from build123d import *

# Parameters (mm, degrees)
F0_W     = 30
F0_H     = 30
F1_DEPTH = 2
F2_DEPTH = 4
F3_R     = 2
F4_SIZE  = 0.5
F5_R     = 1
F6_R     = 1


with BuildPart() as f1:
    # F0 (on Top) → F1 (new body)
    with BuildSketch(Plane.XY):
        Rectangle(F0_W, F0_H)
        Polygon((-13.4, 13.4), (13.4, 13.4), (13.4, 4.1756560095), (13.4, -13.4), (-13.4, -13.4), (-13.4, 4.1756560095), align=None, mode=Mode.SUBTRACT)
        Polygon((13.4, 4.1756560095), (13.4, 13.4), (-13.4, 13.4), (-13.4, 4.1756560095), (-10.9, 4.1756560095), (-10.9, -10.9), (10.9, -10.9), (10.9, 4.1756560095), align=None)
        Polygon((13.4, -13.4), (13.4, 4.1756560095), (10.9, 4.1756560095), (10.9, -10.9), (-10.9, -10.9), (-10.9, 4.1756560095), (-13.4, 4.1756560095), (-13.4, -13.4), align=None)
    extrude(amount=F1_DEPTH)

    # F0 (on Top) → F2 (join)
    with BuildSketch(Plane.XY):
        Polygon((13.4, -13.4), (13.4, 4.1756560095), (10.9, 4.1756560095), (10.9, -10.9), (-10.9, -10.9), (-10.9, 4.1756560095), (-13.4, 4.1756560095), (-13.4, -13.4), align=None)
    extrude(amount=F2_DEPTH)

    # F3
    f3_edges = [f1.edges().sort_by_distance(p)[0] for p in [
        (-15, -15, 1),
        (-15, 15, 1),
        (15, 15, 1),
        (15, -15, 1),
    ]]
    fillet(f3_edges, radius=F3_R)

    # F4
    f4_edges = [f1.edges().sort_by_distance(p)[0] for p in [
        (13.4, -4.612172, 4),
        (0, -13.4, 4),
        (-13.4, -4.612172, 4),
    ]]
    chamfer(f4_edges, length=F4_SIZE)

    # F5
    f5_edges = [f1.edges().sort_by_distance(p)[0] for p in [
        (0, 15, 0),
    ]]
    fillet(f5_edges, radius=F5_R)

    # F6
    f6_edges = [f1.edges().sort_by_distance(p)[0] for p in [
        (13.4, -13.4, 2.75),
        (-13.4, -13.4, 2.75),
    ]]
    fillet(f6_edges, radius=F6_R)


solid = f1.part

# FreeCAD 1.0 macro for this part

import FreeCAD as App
import Part
import Sketcher
Q = App.Units.Quantity


def edges_at(feature, points):
    """Names of the edges that pass closest to the given points."""
    edges = feature.Shape.Edges
    near = lambda p: min(range(len(edges)), key=lambda i: edges[i].distToShape(Part.Vertex(*p))[0])
    return sorted({f"Edge{near(p) + 1}" for p in points})

doc = App.newDocument("Part")
params = doc.addObject("Spreadsheet::Sheet", "Params")
for row, (alias, value) in enumerate([
    ("sketch1_width", "30 mm"),
    ("pad1_length", "2 mm"),
    ("sketch2_width", "2.5 mm"),
    ("sketch2_width2", "21.8 mm"),
    ("pad2_length", "4 mm"),
    ("fillet_radius", "2 mm"),
    ("chamfer_size", "0.5 mm"),
    ("fillet2_radius", "1 mm"),
    ("fillet3_radius", "1 mm"),
], start=1):
    params.set(f"A{row}", alias)
    params.set(f"B{row}", "=" + value)
    params.setAlias(f"B{row}", alias)

body = doc.addObject("PartDesign::Body", "Body")

# Sketch on XY plane
sketch1 = body.newObject("Sketcher::SketchObject", "Sketch")
sketch1.AttachmentSupport = (doc.getObject("XY_Plane"), [""])
sketch1.MapMode = "FlatFace"
sketch1.addGeometry([
    Part.LineSegment(App.Vector(-15, 15, 0), App.Vector(-15, -15, 0)),
    Part.LineSegment(App.Vector(-15, -15, 0), App.Vector(15, -15, 0)),
    Part.LineSegment(App.Vector(15, -15, 0), App.Vector(15, 15, 0)),
    Part.LineSegment(App.Vector(15, 15, 0), App.Vector(-15, 15, 0)),
], False)
sketch1.addConstraint([
    Sketcher.Constraint("Coincident", 0, 2, 1, 1),
    Sketcher.Constraint("Coincident", 1, 2, 2, 1),
    Sketcher.Constraint("Coincident", 2, 2, 3, 1),
    Sketcher.Constraint("Coincident", 3, 2, 0, 1),
    Sketcher.Constraint("Vertical", 0),
    Sketcher.Constraint("Horizontal", 1),
    Sketcher.Constraint("Vertical", 2),
    Sketcher.Constraint("Horizontal", 3),
    Sketcher.Constraint("Symmetric", 0, 2, 2, 2, -1, 1),
    Sketcher.Constraint("Equal", 3, 0),
    Sketcher.Constraint("DistanceX", 1, 1, 1, 2, Q("30 mm")),
])
sketch1.setExpression("Constraints[10]", "Params.sketch1_width")
pad1 = body.newObject("PartDesign::Pad", "Pad")
pad1.Profile = sketch1
pad1.setExpression("Length", "Params.pad1_length")

# Sketch on XY plane
sketch2 = body.newObject("Sketcher::SketchObject", "Sketch001")
sketch2.AttachmentSupport = (doc.getObject("XY_Plane"), [""])
sketch2.MapMode = "FlatFace"
sketch2.addGeometry([
    Part.LineSegment(App.Vector(13.4, -13.4, 0), App.Vector(13.4, 4.2, 0)),  # 0
    Part.LineSegment(App.Vector(13.4, 4.2, 0), App.Vector(10.9, 4.2, 0)),  # 1
    Part.LineSegment(App.Vector(10.9, 4.2, 0), App.Vector(10.9, -10.9, 0)),  # 2
    Part.LineSegment(App.Vector(10.9, -10.9, 0), App.Vector(-10.9, -10.9, 0)),  # 3
    Part.LineSegment(App.Vector(-10.9, -10.9, 0), App.Vector(-10.9, 4.2, 0)),  # 4
    Part.LineSegment(App.Vector(-10.9, 4.2, 0), App.Vector(-13.4, 4.2, 0)),  # 5
    Part.LineSegment(App.Vector(-13.4, 4.2, 0), App.Vector(-13.4, -13.4, 0)),  # 6
    Part.LineSegment(App.Vector(-13.4, -13.4, 0), App.Vector(13.4, -13.4, 0)),  # 7
], False)
sketch2.addConstraint([
    Sketcher.Constraint("Coincident", 0, 2, 1, 1),
    Sketcher.Constraint("Coincident", 1, 2, 2, 1),
    Sketcher.Constraint("Coincident", 2, 2, 3, 1),
    Sketcher.Constraint("Coincident", 3, 2, 4, 1),
    Sketcher.Constraint("Coincident", 4, 2, 5, 1),
    Sketcher.Constraint("Coincident", 5, 2, 6, 1),
    Sketcher.Constraint("Coincident", 6, 2, 7, 1),
    Sketcher.Constraint("Coincident", 7, 2, 0, 1),
    Sketcher.Constraint("Vertical", 0),
    Sketcher.Constraint("Horizontal", 1),
    Sketcher.Constraint("Vertical", 2),
    Sketcher.Constraint("Horizontal", 3),
    Sketcher.Constraint("Vertical", 4),
    Sketcher.Constraint("Horizontal", 5),
    Sketcher.Constraint("Vertical", 6),
    Sketcher.Constraint("Horizontal", 7),
    Sketcher.Constraint("Symmetric", 1, 2, 4, 2, -2),
    Sketcher.Constraint("Equal", 1, 5),
    Sketcher.Constraint("DistanceX", 1, 2, 1, 1, Q("2.5 mm")),
    Sketcher.Constraint("DistanceX", 3, 2, 3, 1, Q("21.8 mm")),
    Sketcher.Constraint("DistanceY", 2, 2, -1, 1, Q("10.9 mm")),
    Sketcher.Constraint("DistanceY", 6, 2, -1, 1, Q("13.4 mm")),
    Sketcher.Constraint("DistanceY", 0, 1, 0, 2, Q("17.575656 mm")),
])
sketch2.setExpression("Constraints[18]", "Params.sketch2_width")
sketch2.setExpression("Constraints[19]", "Params.sketch2_width2")
pad2 = body.newObject("PartDesign::Pad", "Pad001")
pad2.Profile = sketch2
pad2.setExpression("Length", "Params.pad2_length")
doc.recompute()

fillet = body.newObject("PartDesign::Fillet", "Fillet")
fillet.Base = (pad2, edges_at(pad2, [
    (-15, -15, 1),
    (-15, 15, 1),
    (15, 15, 1),
    (15, -15, 1),
]))
fillet.setExpression("Radius", "Params.fillet_radius")
doc.recompute()

chamfer = body.newObject("PartDesign::Chamfer", "Chamfer")
chamfer.Base = (fillet, edges_at(fillet, [(13.4, -4.612, 4), (0, -13.4, 4), (-13.4, -4.612, 4)]))
chamfer.setExpression("Size", "Params.chamfer_size")
doc.recompute()

fillet2 = body.newObject("PartDesign::Fillet", "Fillet001")
fillet2.Base = (chamfer, edges_at(chamfer, [(0, 15, 0)]))
fillet2.setExpression("Radius", "Params.fillet2_radius")
doc.recompute()

fillet3 = body.newObject("PartDesign::Fillet", "Fillet002")
fillet3.Base = (fillet2, edges_at(fillet2, [(13.4, -13.4, 2.75), (-13.4, -13.4, 2.75)]))
fillet3.setExpression("Radius", "Params.fillet3_radius")

doc.recompute()
